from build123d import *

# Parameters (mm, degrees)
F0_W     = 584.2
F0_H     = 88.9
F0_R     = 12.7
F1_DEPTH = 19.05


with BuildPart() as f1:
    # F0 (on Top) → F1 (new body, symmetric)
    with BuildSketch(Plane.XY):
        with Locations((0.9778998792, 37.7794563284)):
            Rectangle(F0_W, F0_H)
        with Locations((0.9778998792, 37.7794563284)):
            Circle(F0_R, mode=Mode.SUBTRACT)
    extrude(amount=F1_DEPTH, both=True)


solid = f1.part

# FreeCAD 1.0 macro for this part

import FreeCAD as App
import Part
import Sketcher
from FreeCAD import Vector
Q = App.Units.Quantity

doc = App.newDocument("Part")
body = doc.addObject("PartDesign::Body", "Body")

sketch1 = body.newObject("Sketcher::SketchObject", "Sketch")
sketch1.AttachmentSupport = (doc.getObject("XY_Plane"), [""])
sketch1.MapMode = "FlatFace"
sketch1.addGeometry([
    Part.LineSegment(Vector(-291, 82, 0), Vector(-291, -7, 0)),
    Part.LineSegment(Vector(-291, -7, 0), Vector(293, -7, 0)),
    Part.LineSegment(Vector(293, -7, 0), Vector(293, 82, 0)),
    Part.LineSegment(Vector(293, 82, 0), Vector(-291, 82, 0)),
    Part.Circle(Vector(1, 38, 0), Vector(0, 0, 1), 13),
], False)
sketch1.addConstraint([
    Sketcher.Constraint("Coincident", 0, 2, 1, 1),
    Sketcher.Constraint("Coincident", 1, 2, 2, 1),
    Sketcher.Constraint("Coincident", 2, 2, 3, 1),
    Sketcher.Constraint("Coincident", 3, 2, 0, 1),
    Sketcher.Constraint("Vertical", 0),
    Sketcher.Constraint("Horizontal", 1),
    Sketcher.Constraint("Vertical", 2),
    Sketcher.Constraint("Horizontal", 3),
    Sketcher.Constraint("Diameter", 4, Q("1 in")),
    Sketcher.Constraint("DistanceX", 1, 1, 1, 2, Q("23 in")),
    Sketcher.Constraint("DistanceY", 0, 2, 0, 1, Q("3.5 in")),
    Sketcher.Constraint("DistanceX", 0, 2, 4, 3, Q("11.5 in")),
    Sketcher.Constraint("DistanceY", 0, 2, 4, 3, Q("1.75 in")),
    Sketcher.Constraint("DistanceX", -1, 1, 4, 3, Q("0.0385 in")),
    Sketcher.Constraint("DistanceY", -1, 1, 4, 3, 37.779456),
])
pad1 = body.newObject("PartDesign::Pad", "Pad")
pad1.Profile = sketch1
pad1.Length = Q("1.5 in")
pad1.Midplane = True

doc.recompute()
